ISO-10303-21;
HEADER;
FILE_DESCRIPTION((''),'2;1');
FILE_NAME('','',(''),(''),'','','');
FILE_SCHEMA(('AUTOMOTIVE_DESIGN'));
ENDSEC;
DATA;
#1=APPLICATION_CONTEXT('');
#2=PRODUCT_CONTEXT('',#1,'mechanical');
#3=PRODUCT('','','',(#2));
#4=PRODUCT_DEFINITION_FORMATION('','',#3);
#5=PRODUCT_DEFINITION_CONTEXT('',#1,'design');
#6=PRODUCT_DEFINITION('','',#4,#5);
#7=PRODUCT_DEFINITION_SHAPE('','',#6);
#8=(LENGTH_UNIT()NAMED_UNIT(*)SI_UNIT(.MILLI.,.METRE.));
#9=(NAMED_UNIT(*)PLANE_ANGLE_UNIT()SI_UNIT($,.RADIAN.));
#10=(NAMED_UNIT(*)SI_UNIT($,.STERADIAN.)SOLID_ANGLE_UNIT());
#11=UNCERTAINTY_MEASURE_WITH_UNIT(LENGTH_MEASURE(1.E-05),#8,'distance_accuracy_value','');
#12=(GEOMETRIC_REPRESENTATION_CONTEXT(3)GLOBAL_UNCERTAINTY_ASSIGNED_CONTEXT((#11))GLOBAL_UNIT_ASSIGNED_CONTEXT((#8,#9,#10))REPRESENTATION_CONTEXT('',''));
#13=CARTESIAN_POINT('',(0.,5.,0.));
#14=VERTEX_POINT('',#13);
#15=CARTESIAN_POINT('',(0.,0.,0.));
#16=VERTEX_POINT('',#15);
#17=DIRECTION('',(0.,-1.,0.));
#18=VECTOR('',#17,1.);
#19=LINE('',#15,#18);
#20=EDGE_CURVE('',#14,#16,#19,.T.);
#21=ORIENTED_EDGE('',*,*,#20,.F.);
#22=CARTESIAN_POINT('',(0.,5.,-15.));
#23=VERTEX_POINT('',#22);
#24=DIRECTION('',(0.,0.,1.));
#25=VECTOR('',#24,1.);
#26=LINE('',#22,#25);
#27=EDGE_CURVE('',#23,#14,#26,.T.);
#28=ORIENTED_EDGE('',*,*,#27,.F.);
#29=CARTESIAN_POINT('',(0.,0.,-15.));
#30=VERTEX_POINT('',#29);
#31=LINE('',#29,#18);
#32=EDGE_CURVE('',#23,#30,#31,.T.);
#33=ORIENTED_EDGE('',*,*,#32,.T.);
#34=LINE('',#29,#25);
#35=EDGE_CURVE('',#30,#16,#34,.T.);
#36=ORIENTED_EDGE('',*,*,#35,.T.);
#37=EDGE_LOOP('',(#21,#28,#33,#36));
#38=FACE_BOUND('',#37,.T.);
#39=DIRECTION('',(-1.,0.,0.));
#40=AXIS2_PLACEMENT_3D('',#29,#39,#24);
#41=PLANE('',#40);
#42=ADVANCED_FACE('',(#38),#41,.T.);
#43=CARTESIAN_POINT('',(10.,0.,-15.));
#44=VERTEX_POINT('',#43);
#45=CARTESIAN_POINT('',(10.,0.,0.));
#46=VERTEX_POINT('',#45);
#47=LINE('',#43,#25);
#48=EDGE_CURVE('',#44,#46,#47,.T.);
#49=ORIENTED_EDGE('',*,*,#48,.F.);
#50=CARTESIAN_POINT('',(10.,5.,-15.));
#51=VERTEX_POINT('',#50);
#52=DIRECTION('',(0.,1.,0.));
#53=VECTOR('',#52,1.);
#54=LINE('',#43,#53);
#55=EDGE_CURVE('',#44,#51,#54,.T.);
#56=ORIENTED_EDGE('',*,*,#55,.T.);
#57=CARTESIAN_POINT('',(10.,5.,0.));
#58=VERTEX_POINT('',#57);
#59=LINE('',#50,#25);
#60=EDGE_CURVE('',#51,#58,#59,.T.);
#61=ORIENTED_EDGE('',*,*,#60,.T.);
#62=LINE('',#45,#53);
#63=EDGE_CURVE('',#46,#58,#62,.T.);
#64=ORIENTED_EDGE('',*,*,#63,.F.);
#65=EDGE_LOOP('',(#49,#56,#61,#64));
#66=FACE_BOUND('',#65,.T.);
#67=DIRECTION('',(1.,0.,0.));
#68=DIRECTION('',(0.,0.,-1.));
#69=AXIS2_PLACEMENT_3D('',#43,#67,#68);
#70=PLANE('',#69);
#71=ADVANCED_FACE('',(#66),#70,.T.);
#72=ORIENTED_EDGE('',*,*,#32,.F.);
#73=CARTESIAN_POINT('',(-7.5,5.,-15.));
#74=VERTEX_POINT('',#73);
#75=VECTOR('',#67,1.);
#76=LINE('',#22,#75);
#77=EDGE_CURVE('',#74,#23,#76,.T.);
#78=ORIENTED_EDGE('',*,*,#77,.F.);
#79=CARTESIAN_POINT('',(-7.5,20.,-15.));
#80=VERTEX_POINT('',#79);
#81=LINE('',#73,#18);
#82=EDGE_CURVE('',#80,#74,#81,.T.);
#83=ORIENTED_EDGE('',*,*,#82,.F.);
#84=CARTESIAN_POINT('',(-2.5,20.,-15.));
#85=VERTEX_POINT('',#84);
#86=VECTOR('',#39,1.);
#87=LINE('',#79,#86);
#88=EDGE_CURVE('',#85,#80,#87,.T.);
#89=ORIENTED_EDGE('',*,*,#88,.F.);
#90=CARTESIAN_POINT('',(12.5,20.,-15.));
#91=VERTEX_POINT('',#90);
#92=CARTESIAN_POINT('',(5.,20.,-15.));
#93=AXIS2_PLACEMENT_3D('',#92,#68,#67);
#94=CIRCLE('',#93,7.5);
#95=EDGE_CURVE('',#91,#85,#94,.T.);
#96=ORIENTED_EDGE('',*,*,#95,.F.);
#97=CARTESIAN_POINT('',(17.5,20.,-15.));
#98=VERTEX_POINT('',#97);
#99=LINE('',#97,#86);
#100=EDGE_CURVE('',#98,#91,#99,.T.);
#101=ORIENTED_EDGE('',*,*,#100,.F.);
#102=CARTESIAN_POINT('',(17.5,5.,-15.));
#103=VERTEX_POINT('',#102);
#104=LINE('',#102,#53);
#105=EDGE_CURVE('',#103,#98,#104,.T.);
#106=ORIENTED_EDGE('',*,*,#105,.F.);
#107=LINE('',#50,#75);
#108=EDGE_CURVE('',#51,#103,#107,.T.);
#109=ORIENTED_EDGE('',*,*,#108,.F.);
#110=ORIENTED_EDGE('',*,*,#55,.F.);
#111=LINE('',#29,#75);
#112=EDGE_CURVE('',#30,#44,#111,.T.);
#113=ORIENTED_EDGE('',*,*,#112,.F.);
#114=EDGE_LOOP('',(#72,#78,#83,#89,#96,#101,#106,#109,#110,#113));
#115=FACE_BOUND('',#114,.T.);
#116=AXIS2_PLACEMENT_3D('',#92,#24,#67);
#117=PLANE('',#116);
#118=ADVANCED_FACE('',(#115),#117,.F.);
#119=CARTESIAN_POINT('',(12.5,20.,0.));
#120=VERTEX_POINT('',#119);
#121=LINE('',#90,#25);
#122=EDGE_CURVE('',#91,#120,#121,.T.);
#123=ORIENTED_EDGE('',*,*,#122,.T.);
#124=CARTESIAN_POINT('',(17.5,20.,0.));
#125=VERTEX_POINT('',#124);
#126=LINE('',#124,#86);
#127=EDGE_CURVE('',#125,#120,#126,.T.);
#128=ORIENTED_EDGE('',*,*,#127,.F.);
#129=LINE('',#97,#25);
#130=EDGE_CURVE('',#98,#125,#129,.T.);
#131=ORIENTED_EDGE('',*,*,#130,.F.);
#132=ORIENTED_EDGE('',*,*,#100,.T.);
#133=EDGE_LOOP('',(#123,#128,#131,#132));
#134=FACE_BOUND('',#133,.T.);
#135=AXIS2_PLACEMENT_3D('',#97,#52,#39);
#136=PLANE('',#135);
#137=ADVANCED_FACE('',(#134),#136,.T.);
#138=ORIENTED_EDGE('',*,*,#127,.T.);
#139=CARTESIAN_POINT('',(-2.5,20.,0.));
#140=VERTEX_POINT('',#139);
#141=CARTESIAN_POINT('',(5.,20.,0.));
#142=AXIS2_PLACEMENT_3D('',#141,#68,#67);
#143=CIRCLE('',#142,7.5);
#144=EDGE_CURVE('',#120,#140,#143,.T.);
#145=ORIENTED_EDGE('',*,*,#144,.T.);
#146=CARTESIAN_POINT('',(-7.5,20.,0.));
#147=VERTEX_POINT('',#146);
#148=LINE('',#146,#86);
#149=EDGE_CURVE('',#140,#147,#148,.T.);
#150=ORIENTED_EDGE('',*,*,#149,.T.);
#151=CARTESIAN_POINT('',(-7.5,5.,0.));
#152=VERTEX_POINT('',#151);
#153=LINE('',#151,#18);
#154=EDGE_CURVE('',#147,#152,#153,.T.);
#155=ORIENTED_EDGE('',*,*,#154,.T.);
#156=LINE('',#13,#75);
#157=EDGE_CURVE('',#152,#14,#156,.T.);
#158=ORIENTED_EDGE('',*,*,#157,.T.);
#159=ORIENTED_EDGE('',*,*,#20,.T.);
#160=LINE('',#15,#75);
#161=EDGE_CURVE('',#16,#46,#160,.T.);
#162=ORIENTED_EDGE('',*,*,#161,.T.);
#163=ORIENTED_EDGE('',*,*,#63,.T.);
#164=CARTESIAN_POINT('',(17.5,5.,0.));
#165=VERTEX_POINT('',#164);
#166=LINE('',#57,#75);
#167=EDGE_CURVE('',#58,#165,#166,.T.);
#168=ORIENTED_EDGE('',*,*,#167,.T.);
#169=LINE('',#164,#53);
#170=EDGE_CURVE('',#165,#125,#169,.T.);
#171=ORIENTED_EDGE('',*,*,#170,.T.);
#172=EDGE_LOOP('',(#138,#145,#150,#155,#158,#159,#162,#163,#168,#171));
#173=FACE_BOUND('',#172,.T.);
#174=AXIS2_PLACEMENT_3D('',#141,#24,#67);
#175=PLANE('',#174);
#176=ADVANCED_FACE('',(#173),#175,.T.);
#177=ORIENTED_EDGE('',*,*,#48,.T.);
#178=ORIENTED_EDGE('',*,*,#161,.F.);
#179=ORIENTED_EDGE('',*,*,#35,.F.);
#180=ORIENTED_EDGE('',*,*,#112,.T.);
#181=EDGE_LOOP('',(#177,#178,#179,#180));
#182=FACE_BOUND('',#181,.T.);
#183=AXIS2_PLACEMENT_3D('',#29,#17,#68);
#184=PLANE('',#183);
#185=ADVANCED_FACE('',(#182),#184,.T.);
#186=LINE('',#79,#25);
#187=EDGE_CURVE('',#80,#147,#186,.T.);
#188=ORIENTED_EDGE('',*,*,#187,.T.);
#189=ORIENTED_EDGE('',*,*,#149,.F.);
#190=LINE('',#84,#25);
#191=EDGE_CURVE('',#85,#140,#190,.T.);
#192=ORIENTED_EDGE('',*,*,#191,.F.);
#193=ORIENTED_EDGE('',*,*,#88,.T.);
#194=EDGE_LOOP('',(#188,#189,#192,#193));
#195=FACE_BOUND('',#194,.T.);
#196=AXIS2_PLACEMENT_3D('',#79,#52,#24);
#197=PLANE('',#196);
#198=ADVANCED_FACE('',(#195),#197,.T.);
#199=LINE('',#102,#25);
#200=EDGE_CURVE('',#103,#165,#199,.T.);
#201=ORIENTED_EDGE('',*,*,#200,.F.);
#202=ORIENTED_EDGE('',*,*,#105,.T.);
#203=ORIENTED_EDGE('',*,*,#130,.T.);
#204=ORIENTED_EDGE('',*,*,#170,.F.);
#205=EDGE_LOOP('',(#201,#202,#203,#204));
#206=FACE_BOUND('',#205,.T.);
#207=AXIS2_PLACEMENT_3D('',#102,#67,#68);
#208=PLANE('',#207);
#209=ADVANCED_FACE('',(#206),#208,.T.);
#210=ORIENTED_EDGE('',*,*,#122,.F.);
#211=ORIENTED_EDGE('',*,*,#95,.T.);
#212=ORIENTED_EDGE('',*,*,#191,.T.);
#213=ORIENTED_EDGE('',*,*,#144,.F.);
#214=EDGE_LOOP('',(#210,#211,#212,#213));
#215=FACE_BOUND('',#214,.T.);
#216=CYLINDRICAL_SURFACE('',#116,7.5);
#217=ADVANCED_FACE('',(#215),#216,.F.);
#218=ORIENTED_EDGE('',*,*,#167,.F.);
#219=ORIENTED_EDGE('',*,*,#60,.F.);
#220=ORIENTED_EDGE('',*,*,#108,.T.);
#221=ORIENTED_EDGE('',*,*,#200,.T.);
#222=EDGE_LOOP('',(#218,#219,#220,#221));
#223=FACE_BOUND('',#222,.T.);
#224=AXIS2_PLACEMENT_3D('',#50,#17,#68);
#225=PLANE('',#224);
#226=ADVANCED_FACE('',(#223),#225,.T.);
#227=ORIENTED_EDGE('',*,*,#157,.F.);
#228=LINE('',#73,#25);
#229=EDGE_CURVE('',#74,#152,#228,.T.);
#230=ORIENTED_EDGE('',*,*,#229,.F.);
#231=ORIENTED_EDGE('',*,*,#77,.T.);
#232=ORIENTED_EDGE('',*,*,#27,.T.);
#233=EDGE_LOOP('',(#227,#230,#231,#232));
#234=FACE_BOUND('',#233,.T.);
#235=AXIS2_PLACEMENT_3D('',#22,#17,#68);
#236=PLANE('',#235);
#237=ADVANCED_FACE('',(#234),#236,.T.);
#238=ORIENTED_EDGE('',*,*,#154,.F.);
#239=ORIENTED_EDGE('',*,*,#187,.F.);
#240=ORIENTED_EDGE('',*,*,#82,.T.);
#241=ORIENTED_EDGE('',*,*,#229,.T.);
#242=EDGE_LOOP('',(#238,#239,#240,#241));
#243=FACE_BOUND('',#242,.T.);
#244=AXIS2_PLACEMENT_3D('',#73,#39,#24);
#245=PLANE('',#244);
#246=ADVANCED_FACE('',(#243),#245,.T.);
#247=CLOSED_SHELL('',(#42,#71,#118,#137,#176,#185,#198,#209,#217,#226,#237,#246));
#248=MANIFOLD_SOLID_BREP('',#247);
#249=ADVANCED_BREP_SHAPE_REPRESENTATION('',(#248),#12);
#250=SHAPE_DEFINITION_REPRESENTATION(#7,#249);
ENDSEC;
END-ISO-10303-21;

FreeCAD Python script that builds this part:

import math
import FreeCAD as App
import Part
import Sketcher
from FreeCAD import Vector

doc = App.newDocument("Part")
params = doc.addObject("Spreadsheet::Sheet", "Params")
for row, (alias, value) in enumerate([
    ("sketch1_radius", "7.5 mm"),
    ("sketch1_width", "10 mm"),
    ("sketch1_width2", "5 mm"),
    ("sketch1_height", "15 mm"),
    ("pad1_length", "15 mm"),
], start=1):
    params.set(f"A{row}", alias)
    params.set(f"B{row}", "=" + value)
    params.setAlias(f"B{row}", alias)

body = doc.addObject("PartDesign::Body", "Body")

sketch1 = doc.addObject("Sketcher::SketchObject", "Sketch")
body.addObject(sketch1)
sketch1.AttachmentSupport = (doc.XY_Plane, [""])
sketch1.MapMode = "FlatFace"
sketch1.addGeometry([
    Part.LineSegment(Vector(0, 0, 0), Vector(10, 0, 0)),
    Part.LineSegment(Vector(10, 0, 0), Vector(10, 5, 0)),
    Part.LineSegment(Vector(10, 5, 0), Vector(17.5, 5, 0)),
    Part.LineSegment(Vector(17.5, 5, 0), Vector(17.5, 20, 0)),
    Part.LineSegment(Vector(17.5, 20, 0), Vector(12.5, 20, 0)),
    Part.ArcOfCircle(Part.Circle(Vector(5, 20, 0), Vector(0, 0, 1), 7.5), math.radians(180), math.radians(360)),
    Part.LineSegment(Vector(-2.5, 20, 0), Vector(-7.5, 20, 0)),
    Part.LineSegment(Vector(-7.5, 20, 0), Vector(-7.5, 5, 0)),
    Part.LineSegment(Vector(-7.5, 5, 0), Vector(0, 5, 0)),
    Part.LineSegment(Vector(0, 5, 0), Vector(0, 0, 0)),
], False)
sketch1.addConstraint([
    Sketcher.Constraint("Coincident", 0, 2, 1, 1),
    Sketcher.Constraint("Coincident", 1, 2, 2, 1),
    Sketcher.Constraint("Coincident", 2, 2, 3, 1),
    Sketcher.Constraint("Coincident", 3, 2, 4, 1),
    Sketcher.Constraint("Coincident", 4, 2, 5, 2),
    Sketcher.Constraint("Coincident", 5, 1, 6, 1),
    Sketcher.Constraint("Coincident", 6, 2, 7, 1),
    Sketcher.Constraint("Coincident", 7, 2, 8, 1),
    Sketcher.Constraint("Coincident", 8, 2, 9, 1),
    Sketcher.Constraint("Coincident", 9, 2, 0, 1),
    Sketcher.Constraint("Horizontal", 0),
    Sketcher.Constraint("Vertical", 1),
    Sketcher.Constraint("Horizontal", 2),
    Sketcher.Constraint("Vertical", 3),
    Sketcher.Constraint("Horizontal", 4),
    Sketcher.Constraint("Horizontal", 6),
    Sketcher.Constraint("Vertical", 7),
    Sketcher.Constraint("Horizontal", 8),
    Sketcher.Constraint("Vertical", 9),
    Sketcher.Constraint("Coincident", 9, 2, -1, 1),
    Sketcher.Constraint("Horizontal", 5, 3, 3, 2),
    Sketcher.Constraint("Horizontal", 4, 2, 5, 1),
    Sketcher.Constraint("Horizontal", 2, 2, 7, 2),
    Sketcher.Constraint("Equal", 4, 6),
    Sketcher.Constraint("Equal", 2, 8),
    Sketcher.Constraint("Equal", 6, 1),
    Sketcher.Constraint("Radius", 5, 7.5),
    Sketcher.Constraint("DistanceX", 0, 1, 0, 2, 10.0),
    Sketcher.Constraint("DistanceX", 4, 2, 4, 1, 5.0),
    Sketcher.Constraint("DistanceY", 3, 1, 3, 2, 15.0),
])
sketch1.setExpression("Constraints[26]", "Params.sketch1_radius")
sketch1.setExpression("Constraints[27]", "Params.sketch1_width")
sketch1.setExpression("Constraints[28]", "Params.sketch1_width2")
sketch1.setExpression("Constraints[29]", "Params.sketch1_height")
pad1 = doc.addObject("PartDesign::Pad", "Pad")
body.addObject(pad1)
pad1.Profile = sketch1
pad1.setExpression("Length", "Params.pad1_length")
pad1.Reversed = True

doc.recompute()
